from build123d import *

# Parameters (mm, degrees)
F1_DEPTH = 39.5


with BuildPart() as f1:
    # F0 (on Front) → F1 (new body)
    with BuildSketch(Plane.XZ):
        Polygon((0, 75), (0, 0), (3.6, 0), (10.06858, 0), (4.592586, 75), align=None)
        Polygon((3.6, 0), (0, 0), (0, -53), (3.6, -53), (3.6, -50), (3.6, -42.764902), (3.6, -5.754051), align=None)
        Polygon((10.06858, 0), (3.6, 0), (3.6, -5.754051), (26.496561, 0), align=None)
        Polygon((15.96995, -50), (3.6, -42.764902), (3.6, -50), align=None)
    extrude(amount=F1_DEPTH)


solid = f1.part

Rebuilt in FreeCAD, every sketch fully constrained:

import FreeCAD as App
import Part
import Sketcher
from FreeCAD import Vector


def add_polygon(sketch, points):
    """Adds a closed chain of lines whose ends are joined by coincident constraints."""
    first, n = sketch.GeometryCount, len(points)
    for a, b in zip(points, points[1:] + points[:1]):
        sketch.addGeometry(Part.LineSegment(App.Vector(*a, 0), App.Vector(*b, 0)), False)
    for i in range(n):
        sketch.addConstraint(Sketcher.Constraint("Coincident", first + i, 2, first + (i + 1) % n, 1))

doc = App.newDocument("Part")
body = doc.addObject("PartDesign::Body", "Body")

# Sketch on XZ plane
sketch1 = doc.addObject("Sketcher::SketchObject", "Sketch")
body.addObject(sketch1)
sketch1.AttachmentSupport = (doc.XZ_Plane, [""])
sketch1.MapMode = "FlatFace"
add_polygon(sketch1, [(0, 75), (0, -53), (3.6, -53), (3.6, -50), (16, -50), (3.6, -42.8), (3.6, -5.8), (26.5, 0), (10.1, 0), (4.6, 75)])  # lines 0-9
sketch1.addConstraint(Sketcher.Constraint("Vertical", 0))
sketch1.addConstraint(Sketcher.Constraint("Horizontal", 1))
sketch1.addConstraint(Sketcher.Constraint("Vertical", 2))
sketch1.addConstraint(Sketcher.Constraint("Horizontal", 3))
sketch1.addConstraint(Sketcher.Constraint("Vertical", 5))
sketch1.addConstraint(Sketcher.Constraint("Horizontal", 7))
sketch1.addConstraint(Sketcher.Constraint("Horizontal", 9))
sketch1.addConstraint(Sketcher.Constraint("PointOnObject", 0, 2, -2))
sketch1.addConstraint(Sketcher.Constraint("PointOnObject", 6, 2, -1))
sketch1.addConstraint(Sketcher.Constraint("Vertical", 2, 2, 4, 2))
sketch1.addConstraint(Sketcher.Constraint("DistanceY", 0, 2, 0, 1, 128.0))
sketch1.addConstraint(Sketcher.Constraint("DistanceY", 2, 1, 2, 2, 3.0))
sketch1.addConstraint(Sketcher.Constraint("DistanceX", 1, 1, 1, 2, 3.6))
sketch1.addConstraint(Sketcher.Constraint("DistanceY", 0, 2, -1, 1, 53.0))
sketch1.addConstraint(Sketcher.Constraint("DistanceX", 3, 1, 3, 2, 12.36995))
sketch1.addConstraint(Sketcher.Constraint("DistanceX", 7, 2, 7, 1, 16.427981))
sketch1.addConstraint(Sketcher.Constraint("DistanceY", 5, 1, 5, 2, 37.010851))
sketch1.addConstraint(Sketcher.Constraint("DistanceY", 2, 2, 4, 2, 7.235098))
sketch1.addConstraint(Sketcher.Constraint("DistanceX", 9, 2, 9, 1, 4.592586))
sketch1.addConstraint(Sketcher.Constraint("DistanceX", -1, 1, 6, 2, 26.496561))
pad1 = doc.addObject("PartDesign::Pad", "Pad")
body.addObject(pad1)
pad1.Profile = sketch1
pad1.Length = 39.5

doc.recompute()
